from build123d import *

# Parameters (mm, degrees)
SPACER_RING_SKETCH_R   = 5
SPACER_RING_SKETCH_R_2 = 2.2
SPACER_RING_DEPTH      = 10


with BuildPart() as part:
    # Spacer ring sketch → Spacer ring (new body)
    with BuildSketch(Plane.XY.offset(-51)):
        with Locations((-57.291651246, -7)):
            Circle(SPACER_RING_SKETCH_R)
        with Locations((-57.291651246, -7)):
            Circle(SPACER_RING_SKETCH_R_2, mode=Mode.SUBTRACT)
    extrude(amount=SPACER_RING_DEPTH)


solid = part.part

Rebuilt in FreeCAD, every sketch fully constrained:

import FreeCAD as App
import Part
import Sketcher
from FreeCAD import Vector
Q = App.Units.Quantity

doc = App.newDocument("Part")
body = doc.addObject("PartDesign::Body", "Body")

sketch1 = body.newObject("Sketcher::SketchObject", "Sketch")
sketch1.AttachmentSupport = (doc.getObject("XY_Plane"), [""])
sketch1.MapMode = "FlatFace"
sketch1.AttachmentOffset = App.Placement(Vector(0, 0, -51), App.Rotation())
sketch1.addGeometry(Part.Circle(Vector(-57.3, -7, 0), Vector(0, 0, 1), 5), False)
sketch1.addGeometry(Part.Circle(Vector(-57.3, -7, 0), Vector(0, 0, 1), 2.2), False)
sketch1.addConstraint(Sketcher.Constraint("Coincident", 1, 3, 0, 3))
sketch1.addConstraint(Sketcher.Constraint("Diameter", 0, Q("10 mm")))
sketch1.addConstraint(Sketcher.Constraint("Diameter", 1, Q("4.4 mm")))
sketch1.addConstraint(Sketcher.Constraint("DistanceY", 0, 3, -1, 1, Q("7 mm")))
sketch1.addConstraint(Sketcher.Constraint("DistanceX", 0, 3, -1, 1, Q("57.291651 mm")))
pad1 = body.newObject("PartDesign::Pad", "Pad")
pad1.Profile = sketch1
pad1.Length = 10

doc.recompute()
